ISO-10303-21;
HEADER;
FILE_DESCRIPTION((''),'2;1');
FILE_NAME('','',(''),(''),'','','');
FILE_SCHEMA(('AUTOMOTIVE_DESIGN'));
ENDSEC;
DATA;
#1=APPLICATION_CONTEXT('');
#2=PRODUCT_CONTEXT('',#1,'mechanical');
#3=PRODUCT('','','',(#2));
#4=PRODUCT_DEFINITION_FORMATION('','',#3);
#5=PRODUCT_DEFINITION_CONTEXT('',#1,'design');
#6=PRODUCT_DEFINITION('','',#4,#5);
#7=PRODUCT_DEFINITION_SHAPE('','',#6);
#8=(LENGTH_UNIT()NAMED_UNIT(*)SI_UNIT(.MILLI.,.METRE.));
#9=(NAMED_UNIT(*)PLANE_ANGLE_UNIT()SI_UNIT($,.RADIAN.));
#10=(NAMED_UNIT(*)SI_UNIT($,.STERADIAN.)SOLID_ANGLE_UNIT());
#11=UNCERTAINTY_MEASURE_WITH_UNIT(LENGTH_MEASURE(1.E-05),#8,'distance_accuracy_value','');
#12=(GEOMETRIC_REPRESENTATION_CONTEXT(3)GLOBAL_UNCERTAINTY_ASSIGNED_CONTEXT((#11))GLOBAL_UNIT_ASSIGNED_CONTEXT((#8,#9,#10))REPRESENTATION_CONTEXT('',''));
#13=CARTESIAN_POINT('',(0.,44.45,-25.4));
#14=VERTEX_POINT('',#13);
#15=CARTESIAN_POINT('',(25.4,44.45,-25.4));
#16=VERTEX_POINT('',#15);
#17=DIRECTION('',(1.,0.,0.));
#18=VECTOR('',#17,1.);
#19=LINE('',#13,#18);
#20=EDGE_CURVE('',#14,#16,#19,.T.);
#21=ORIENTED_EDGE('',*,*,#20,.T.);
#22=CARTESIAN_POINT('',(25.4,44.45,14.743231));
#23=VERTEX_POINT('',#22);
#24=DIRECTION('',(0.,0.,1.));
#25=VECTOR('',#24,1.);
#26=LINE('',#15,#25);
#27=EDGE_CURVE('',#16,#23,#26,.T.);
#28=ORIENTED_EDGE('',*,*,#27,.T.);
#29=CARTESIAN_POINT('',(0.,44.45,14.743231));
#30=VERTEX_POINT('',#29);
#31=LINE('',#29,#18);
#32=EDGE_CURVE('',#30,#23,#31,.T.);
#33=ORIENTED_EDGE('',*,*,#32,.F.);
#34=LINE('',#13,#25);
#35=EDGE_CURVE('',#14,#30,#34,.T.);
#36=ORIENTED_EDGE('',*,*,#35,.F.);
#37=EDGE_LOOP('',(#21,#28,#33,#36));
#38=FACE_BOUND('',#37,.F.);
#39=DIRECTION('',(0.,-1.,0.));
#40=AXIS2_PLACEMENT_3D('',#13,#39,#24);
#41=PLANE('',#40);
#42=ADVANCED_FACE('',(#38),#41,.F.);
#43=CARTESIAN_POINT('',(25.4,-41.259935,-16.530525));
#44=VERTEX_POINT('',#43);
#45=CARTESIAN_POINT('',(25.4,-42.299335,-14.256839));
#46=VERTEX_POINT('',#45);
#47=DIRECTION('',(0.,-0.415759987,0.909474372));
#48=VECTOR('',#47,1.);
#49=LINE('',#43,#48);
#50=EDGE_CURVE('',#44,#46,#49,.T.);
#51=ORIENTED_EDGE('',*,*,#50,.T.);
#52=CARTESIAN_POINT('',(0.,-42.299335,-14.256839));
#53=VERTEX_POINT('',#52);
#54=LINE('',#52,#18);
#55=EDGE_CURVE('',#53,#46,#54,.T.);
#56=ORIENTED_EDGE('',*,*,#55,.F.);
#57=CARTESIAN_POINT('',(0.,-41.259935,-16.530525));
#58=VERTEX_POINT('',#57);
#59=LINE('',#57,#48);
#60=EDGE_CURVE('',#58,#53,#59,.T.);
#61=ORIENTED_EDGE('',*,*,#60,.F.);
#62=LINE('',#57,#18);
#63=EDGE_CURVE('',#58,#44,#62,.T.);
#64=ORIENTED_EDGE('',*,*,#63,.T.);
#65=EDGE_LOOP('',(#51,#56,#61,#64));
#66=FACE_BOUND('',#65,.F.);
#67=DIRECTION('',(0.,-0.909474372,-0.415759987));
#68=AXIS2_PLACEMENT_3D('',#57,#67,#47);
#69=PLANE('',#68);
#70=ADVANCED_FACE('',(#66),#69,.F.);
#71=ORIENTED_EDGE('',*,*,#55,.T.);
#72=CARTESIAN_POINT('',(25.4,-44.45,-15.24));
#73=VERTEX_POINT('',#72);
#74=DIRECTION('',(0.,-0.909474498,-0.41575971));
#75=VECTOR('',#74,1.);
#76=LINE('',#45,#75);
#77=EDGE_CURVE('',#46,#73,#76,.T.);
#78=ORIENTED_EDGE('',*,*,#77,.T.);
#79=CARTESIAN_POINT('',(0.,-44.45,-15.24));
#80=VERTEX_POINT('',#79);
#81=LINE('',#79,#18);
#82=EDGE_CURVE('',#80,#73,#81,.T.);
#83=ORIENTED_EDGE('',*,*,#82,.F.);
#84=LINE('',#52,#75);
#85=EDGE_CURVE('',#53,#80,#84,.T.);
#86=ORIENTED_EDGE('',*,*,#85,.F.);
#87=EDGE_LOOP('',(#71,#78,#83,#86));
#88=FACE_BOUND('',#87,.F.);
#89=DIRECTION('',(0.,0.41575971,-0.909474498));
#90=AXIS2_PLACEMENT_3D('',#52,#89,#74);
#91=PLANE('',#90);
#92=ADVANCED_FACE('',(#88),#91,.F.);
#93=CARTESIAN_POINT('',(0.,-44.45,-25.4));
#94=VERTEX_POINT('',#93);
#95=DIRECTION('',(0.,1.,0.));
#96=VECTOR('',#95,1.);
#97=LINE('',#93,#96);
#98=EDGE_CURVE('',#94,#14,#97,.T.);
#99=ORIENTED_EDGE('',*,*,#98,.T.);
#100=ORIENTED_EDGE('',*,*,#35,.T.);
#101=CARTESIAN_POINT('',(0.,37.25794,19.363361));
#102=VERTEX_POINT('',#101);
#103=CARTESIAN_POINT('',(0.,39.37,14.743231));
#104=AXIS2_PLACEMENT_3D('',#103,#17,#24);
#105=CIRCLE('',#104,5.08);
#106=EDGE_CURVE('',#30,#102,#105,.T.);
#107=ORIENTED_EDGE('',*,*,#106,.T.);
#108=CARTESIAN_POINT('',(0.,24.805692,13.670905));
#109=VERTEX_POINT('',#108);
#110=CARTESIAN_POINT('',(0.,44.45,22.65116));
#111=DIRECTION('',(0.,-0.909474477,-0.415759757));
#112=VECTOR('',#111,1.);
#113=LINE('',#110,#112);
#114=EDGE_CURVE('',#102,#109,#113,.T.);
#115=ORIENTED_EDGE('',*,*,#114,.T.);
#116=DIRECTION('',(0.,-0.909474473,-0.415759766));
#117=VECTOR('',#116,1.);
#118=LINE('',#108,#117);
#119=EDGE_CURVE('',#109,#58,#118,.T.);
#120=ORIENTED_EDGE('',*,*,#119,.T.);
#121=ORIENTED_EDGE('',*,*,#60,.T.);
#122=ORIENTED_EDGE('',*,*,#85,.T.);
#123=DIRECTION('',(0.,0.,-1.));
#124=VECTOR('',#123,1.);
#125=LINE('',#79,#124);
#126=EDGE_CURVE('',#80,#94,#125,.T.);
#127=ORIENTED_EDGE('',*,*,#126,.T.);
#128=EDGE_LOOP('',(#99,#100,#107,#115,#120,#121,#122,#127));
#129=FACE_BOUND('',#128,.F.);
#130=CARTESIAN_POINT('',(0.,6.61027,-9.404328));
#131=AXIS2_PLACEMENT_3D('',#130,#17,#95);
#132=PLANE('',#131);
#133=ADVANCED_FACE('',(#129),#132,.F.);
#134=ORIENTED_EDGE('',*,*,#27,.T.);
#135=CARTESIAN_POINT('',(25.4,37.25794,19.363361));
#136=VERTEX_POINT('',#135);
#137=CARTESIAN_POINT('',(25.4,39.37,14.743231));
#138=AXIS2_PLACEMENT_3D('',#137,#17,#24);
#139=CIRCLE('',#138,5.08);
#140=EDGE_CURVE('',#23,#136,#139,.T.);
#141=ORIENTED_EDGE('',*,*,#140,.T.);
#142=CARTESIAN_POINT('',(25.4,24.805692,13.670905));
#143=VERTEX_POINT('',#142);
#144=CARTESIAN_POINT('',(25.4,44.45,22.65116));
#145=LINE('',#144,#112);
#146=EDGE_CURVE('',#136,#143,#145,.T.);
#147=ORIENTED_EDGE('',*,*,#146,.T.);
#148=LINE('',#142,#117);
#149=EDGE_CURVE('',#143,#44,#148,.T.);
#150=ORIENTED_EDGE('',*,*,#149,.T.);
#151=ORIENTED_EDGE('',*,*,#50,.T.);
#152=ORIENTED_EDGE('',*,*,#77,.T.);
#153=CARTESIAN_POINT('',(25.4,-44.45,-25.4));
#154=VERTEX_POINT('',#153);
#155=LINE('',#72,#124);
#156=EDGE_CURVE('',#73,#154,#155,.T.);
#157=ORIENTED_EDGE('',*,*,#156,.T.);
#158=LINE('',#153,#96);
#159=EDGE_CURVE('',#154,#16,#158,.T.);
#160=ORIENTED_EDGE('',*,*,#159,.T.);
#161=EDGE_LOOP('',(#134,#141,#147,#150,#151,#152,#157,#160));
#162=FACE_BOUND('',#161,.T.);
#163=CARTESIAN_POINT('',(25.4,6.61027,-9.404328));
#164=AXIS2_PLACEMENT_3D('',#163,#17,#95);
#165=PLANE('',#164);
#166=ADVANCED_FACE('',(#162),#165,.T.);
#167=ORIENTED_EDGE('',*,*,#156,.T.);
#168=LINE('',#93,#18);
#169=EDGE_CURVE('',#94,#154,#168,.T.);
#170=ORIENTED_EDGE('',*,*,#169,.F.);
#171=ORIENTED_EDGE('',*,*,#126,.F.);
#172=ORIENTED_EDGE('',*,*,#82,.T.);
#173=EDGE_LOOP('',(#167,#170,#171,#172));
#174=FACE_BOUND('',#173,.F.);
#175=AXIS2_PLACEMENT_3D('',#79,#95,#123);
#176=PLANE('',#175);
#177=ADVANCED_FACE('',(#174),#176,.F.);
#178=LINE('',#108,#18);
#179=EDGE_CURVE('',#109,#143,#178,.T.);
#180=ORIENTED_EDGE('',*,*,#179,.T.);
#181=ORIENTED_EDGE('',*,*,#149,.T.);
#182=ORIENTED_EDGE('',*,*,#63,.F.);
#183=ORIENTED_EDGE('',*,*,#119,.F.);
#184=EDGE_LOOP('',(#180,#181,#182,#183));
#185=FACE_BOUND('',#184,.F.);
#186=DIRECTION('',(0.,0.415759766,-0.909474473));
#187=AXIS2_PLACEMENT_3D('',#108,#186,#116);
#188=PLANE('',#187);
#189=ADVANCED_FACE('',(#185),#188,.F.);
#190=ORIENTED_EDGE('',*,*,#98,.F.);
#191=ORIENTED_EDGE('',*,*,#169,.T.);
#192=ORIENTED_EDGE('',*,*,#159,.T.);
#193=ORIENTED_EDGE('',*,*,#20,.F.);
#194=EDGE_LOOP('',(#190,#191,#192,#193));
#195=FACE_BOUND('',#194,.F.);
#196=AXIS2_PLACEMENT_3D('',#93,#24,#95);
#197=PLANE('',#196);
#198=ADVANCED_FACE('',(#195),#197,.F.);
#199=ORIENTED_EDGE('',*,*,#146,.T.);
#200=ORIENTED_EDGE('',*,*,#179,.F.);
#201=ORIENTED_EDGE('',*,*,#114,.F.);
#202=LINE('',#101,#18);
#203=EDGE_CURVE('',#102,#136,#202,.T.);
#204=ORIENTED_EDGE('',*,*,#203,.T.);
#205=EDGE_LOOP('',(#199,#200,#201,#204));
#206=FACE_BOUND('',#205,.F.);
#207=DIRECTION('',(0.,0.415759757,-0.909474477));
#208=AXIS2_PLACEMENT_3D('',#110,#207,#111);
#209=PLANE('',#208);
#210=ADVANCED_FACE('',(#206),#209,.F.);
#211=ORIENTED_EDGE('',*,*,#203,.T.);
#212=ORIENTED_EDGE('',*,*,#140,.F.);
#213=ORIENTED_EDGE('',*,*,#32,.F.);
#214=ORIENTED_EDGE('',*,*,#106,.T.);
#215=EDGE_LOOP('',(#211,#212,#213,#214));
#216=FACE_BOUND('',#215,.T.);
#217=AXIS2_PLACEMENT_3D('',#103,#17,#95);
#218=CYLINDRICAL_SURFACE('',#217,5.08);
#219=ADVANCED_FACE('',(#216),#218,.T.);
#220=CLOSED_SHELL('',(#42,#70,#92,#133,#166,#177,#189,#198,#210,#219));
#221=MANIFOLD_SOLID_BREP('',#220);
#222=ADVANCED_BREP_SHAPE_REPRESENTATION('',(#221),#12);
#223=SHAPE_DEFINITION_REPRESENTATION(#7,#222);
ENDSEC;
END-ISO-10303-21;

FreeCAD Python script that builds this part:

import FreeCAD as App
import Part
import Sketcher

V = App.Vector
Q = App.Units.Quantity


def edges_at(feature, points):
    """Names of the edges that pass closest to the given points."""
    edges = feature.Shape.Edges
    near = lambda p: min(range(len(edges)), key=lambda i: edges[i].distToShape(Part.Vertex(*p))[0])
    return sorted({f"Edge{near(p) + 1}" for p in points})


def add_polygon(sketch, points):
    """Adds a closed chain of lines whose ends are joined by coincident constraints."""
    first, n = sketch.GeometryCount, len(points)
    for a, b in zip(points, points[1:] + points[:1]):
        sketch.addGeometry(Part.LineSegment(App.Vector(*a, 0), App.Vector(*b, 0)), False)
    for i in range(n):
        sketch.addConstraint(Sketcher.Constraint("Coincident", first + i, 2, first + (i + 1) % n, 1))

doc = App.newDocument("Part")
body = doc.addObject("PartDesign::Body", "Body")

sketch1 = body.newObject("Sketcher::SketchObject", "Sketch")
sketch1.AttachmentSupport = (doc.getObject("YZ_Plane"), [""])
sketch1.MapMode = "FlatFace"
add_polygon(sketch1, [(-44.5, -15.2), (-44.5, -25.4), (44.5, -25.4), (44.5, 22.7), (24.8, 13.7), (-41.3, -16.5), (-42.3, -14.3)])
sketch1.addConstraint([
    Sketcher.Constraint("Vertical", 0),
    Sketcher.Constraint("Horizontal", 1),
    Sketcher.Constraint("Vertical", 2),
    Sketcher.Constraint("Parallel", 3, 4),
    Sketcher.Constraint("Perpendicular", 4, 5),
    Sketcher.Constraint("Perpendicular", 5, 6),
    Sketcher.Constraint("DistanceX", 1, 1, 1, 2, Q("3.5 in")),
    Sketcher.Constraint("DistanceY", 0, 2, 0, 1, Q("0.4 in")),
    Sketcher.Constraint("DistanceY", 0, 2, -1, 1, Q("1 in")),
    Sketcher.Constraint("DistanceX", 0, 2, -1, 1, Q("1.75 in")),
    Sketcher.Constraint("Distance", 5, 2.5),
    Sketcher.Constraint("DistanceY", 2, 1, 2, 2, 48.05116),
    Sketcher.Constraint("DistanceY", 5, 2, 2, 2, 36.907999),
    Sketcher.Constraint("Distance", 4, 72.641541),
])
pad1 = body.newObject("PartDesign::Pad", "Pad")
pad1.Profile = sketch1
pad1.Length = Q("1 in")
doc.recompute()

fillet = body.newObject("PartDesign::Fillet", "Fillet")
fillet.Base = (pad1, edges_at(pad1, [(12.7, 44.45, 22.651)]))
fillet.Radius = Q("0.2 in")

doc.recompute()
